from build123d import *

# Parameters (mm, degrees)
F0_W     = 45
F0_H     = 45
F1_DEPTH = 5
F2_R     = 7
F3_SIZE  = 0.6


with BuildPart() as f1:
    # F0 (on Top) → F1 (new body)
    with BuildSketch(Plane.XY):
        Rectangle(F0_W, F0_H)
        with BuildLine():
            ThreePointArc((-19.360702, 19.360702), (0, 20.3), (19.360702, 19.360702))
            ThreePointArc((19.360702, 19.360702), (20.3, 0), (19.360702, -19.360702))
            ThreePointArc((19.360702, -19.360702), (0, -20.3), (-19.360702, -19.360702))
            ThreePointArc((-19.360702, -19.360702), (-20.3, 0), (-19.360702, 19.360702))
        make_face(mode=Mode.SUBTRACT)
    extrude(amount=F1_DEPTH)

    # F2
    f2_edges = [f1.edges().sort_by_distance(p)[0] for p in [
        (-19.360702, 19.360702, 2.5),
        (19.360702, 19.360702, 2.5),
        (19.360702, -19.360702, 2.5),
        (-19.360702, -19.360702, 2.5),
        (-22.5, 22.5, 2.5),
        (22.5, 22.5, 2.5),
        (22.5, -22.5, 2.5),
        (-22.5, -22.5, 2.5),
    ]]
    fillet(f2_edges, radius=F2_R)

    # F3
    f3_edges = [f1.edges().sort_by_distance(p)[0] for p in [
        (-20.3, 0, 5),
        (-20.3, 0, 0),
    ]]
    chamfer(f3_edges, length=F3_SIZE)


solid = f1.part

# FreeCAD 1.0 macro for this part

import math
import FreeCAD as App
import Part
import Sketcher
from FreeCAD import Vector
Q = App.Units.Quantity


def edges_at(feature, points):
    """Names of the edges that pass closest to the given points."""
    edges = feature.Shape.Edges
    near = lambda p: min(range(len(edges)), key=lambda i: edges[i].distToShape(Part.Vertex(*p))[0])
    return sorted({f"Edge{near(p) + 1}" for p in points})


def add_polygon(sketch, points):
    """Adds a closed chain of lines whose ends are joined by coincident constraints."""
    first, n = sketch.GeometryCount, len(points)
    for a, b in zip(points, points[1:] + points[:1]):
        sketch.addGeometry(Part.LineSegment(App.Vector(*a, 0), App.Vector(*b, 0)), False)
    for i in range(n):
        sketch.addConstraint(Sketcher.Constraint("Coincident", first + i, 2, first + (i + 1) % n, 1))

doc = App.newDocument("Part")
params = doc.addObject("Spreadsheet::Sheet", "Params")
for row, (alias, value) in enumerate([
    ("sketch1_width", "45 mm"),
    ("pad1_length", "5 mm"),
    ("fillet_radius", "7 mm"),
    ("chamfer_size", "0.6 mm"),
], start=1):
    params.set(f"A{row}", alias)
    params.set(f"B{row}", "=" + value)
    params.setAlias(f"B{row}", alias)

body = doc.addObject("PartDesign::Body", "Body")

sketch1 = body.newObject("Sketcher::SketchObject", "Sketch")
sketch1.AttachmentSupport = (doc.getObject("XY_Plane"), [""])
sketch1.MapMode = "FlatFace"
add_polygon(sketch1, [(-22, 22), (-22, -22), (22, -22), (22, 22)])
sketch1.addGeometry(Part.ArcOfCircle(Part.Circle(Vector(180, 0, 0), Vector(0, 0, 1), 200), math.radians(174.44), math.radians(185.56)), False)
sketch1.addGeometry(Part.ArcOfCircle(Part.Circle(Vector(0, -180, 0), Vector(0, 0, 1), 200), math.radians(84.44), math.radians(95.56)), False)
sketch1.addGeometry(Part.ArcOfCircle(Part.Circle(Vector(-180, 0, 0), Vector(0, 0, 1), 200), math.radians(-5.56), math.radians(5.56)), False)
sketch1.addGeometry(Part.ArcOfCircle(Part.Circle(Vector(0, 180, 0), Vector(0, 0, 1), 200), math.radians(-95.56), math.radians(-84.44)), False)
sketch1.addConstraint([
    Sketcher.Constraint("Coincident", 4, 1, 5, 2),
    Sketcher.Constraint("Coincident", 5, 1, 6, 2),
    Sketcher.Constraint("Coincident", 6, 1, 7, 2),
    Sketcher.Constraint("Coincident", 7, 1, 4, 2),
    Sketcher.Constraint("Vertical", 0),
    Sketcher.Constraint("Horizontal", 1),
    Sketcher.Constraint("Vertical", 2),
    Sketcher.Constraint("Horizontal", 3),
    Sketcher.Constraint("Equal", 4, 5),
    Sketcher.Constraint("Equal", 5, 6),
    Sketcher.Constraint("Equal", 6, 7),
    Sketcher.Constraint("Symmetric", 4, 3, 6, 3, -1, 1),
    Sketcher.Constraint("Symmetric", 5, 3, 7, 3, -1, 1),
    Sketcher.Constraint("Symmetric", 0, 2, 2, 2, -1, 1),
    Sketcher.Constraint("PointOnObject", 4, 3, -1),
    Sketcher.Constraint("PointOnObject", 5, 3, -2),
    Sketcher.Constraint("Equal", 3, 0),
    Sketcher.Constraint("DistanceX", 1, 1, 1, 2, Q("45 mm")),
    Sketcher.Constraint("Radius", 4, Q("199.999927 mm")),
    Sketcher.Constraint("DistanceX", 4, 1, -1, 1, Q("19.360702 mm")),
    Sketcher.Constraint("DistanceY", -1, 1, 4, 1, Q("19.360702 mm")),
])
sketch1.setExpression("Constraints[21]", "Params.sketch1_width")
pad1 = body.newObject("PartDesign::Pad", "Pad")
pad1.Profile = sketch1
pad1.setExpression("Length", "Params.pad1_length")
doc.recompute()

fillet = body.newObject("PartDesign::Fillet", "Fillet")
fillet.Base = (pad1, edges_at(pad1, [
    (-19.361, 19.361, 2.5),
    (19.361, 19.361, 2.5),
    (19.361, -19.361, 2.5),
    (-19.361, -19.361, 2.5),
    (-22.5, 22.5, 2.5),
    (22.5, 22.5, 2.5),
    (22.5, -22.5, 2.5),
    (-22.5, -22.5, 2.5),
]))
fillet.setExpression("Radius", "Params.fillet_radius")
doc.recompute()

chamfer = body.newObject("PartDesign::Chamfer", "Chamfer")
chamfer.Base = (fillet, edges_at(fillet, [(-20.3, 0, 5), (-20.3, 0, 0)]))
chamfer.setExpression("Size", "Params.chamfer_size")

doc.recompute()
